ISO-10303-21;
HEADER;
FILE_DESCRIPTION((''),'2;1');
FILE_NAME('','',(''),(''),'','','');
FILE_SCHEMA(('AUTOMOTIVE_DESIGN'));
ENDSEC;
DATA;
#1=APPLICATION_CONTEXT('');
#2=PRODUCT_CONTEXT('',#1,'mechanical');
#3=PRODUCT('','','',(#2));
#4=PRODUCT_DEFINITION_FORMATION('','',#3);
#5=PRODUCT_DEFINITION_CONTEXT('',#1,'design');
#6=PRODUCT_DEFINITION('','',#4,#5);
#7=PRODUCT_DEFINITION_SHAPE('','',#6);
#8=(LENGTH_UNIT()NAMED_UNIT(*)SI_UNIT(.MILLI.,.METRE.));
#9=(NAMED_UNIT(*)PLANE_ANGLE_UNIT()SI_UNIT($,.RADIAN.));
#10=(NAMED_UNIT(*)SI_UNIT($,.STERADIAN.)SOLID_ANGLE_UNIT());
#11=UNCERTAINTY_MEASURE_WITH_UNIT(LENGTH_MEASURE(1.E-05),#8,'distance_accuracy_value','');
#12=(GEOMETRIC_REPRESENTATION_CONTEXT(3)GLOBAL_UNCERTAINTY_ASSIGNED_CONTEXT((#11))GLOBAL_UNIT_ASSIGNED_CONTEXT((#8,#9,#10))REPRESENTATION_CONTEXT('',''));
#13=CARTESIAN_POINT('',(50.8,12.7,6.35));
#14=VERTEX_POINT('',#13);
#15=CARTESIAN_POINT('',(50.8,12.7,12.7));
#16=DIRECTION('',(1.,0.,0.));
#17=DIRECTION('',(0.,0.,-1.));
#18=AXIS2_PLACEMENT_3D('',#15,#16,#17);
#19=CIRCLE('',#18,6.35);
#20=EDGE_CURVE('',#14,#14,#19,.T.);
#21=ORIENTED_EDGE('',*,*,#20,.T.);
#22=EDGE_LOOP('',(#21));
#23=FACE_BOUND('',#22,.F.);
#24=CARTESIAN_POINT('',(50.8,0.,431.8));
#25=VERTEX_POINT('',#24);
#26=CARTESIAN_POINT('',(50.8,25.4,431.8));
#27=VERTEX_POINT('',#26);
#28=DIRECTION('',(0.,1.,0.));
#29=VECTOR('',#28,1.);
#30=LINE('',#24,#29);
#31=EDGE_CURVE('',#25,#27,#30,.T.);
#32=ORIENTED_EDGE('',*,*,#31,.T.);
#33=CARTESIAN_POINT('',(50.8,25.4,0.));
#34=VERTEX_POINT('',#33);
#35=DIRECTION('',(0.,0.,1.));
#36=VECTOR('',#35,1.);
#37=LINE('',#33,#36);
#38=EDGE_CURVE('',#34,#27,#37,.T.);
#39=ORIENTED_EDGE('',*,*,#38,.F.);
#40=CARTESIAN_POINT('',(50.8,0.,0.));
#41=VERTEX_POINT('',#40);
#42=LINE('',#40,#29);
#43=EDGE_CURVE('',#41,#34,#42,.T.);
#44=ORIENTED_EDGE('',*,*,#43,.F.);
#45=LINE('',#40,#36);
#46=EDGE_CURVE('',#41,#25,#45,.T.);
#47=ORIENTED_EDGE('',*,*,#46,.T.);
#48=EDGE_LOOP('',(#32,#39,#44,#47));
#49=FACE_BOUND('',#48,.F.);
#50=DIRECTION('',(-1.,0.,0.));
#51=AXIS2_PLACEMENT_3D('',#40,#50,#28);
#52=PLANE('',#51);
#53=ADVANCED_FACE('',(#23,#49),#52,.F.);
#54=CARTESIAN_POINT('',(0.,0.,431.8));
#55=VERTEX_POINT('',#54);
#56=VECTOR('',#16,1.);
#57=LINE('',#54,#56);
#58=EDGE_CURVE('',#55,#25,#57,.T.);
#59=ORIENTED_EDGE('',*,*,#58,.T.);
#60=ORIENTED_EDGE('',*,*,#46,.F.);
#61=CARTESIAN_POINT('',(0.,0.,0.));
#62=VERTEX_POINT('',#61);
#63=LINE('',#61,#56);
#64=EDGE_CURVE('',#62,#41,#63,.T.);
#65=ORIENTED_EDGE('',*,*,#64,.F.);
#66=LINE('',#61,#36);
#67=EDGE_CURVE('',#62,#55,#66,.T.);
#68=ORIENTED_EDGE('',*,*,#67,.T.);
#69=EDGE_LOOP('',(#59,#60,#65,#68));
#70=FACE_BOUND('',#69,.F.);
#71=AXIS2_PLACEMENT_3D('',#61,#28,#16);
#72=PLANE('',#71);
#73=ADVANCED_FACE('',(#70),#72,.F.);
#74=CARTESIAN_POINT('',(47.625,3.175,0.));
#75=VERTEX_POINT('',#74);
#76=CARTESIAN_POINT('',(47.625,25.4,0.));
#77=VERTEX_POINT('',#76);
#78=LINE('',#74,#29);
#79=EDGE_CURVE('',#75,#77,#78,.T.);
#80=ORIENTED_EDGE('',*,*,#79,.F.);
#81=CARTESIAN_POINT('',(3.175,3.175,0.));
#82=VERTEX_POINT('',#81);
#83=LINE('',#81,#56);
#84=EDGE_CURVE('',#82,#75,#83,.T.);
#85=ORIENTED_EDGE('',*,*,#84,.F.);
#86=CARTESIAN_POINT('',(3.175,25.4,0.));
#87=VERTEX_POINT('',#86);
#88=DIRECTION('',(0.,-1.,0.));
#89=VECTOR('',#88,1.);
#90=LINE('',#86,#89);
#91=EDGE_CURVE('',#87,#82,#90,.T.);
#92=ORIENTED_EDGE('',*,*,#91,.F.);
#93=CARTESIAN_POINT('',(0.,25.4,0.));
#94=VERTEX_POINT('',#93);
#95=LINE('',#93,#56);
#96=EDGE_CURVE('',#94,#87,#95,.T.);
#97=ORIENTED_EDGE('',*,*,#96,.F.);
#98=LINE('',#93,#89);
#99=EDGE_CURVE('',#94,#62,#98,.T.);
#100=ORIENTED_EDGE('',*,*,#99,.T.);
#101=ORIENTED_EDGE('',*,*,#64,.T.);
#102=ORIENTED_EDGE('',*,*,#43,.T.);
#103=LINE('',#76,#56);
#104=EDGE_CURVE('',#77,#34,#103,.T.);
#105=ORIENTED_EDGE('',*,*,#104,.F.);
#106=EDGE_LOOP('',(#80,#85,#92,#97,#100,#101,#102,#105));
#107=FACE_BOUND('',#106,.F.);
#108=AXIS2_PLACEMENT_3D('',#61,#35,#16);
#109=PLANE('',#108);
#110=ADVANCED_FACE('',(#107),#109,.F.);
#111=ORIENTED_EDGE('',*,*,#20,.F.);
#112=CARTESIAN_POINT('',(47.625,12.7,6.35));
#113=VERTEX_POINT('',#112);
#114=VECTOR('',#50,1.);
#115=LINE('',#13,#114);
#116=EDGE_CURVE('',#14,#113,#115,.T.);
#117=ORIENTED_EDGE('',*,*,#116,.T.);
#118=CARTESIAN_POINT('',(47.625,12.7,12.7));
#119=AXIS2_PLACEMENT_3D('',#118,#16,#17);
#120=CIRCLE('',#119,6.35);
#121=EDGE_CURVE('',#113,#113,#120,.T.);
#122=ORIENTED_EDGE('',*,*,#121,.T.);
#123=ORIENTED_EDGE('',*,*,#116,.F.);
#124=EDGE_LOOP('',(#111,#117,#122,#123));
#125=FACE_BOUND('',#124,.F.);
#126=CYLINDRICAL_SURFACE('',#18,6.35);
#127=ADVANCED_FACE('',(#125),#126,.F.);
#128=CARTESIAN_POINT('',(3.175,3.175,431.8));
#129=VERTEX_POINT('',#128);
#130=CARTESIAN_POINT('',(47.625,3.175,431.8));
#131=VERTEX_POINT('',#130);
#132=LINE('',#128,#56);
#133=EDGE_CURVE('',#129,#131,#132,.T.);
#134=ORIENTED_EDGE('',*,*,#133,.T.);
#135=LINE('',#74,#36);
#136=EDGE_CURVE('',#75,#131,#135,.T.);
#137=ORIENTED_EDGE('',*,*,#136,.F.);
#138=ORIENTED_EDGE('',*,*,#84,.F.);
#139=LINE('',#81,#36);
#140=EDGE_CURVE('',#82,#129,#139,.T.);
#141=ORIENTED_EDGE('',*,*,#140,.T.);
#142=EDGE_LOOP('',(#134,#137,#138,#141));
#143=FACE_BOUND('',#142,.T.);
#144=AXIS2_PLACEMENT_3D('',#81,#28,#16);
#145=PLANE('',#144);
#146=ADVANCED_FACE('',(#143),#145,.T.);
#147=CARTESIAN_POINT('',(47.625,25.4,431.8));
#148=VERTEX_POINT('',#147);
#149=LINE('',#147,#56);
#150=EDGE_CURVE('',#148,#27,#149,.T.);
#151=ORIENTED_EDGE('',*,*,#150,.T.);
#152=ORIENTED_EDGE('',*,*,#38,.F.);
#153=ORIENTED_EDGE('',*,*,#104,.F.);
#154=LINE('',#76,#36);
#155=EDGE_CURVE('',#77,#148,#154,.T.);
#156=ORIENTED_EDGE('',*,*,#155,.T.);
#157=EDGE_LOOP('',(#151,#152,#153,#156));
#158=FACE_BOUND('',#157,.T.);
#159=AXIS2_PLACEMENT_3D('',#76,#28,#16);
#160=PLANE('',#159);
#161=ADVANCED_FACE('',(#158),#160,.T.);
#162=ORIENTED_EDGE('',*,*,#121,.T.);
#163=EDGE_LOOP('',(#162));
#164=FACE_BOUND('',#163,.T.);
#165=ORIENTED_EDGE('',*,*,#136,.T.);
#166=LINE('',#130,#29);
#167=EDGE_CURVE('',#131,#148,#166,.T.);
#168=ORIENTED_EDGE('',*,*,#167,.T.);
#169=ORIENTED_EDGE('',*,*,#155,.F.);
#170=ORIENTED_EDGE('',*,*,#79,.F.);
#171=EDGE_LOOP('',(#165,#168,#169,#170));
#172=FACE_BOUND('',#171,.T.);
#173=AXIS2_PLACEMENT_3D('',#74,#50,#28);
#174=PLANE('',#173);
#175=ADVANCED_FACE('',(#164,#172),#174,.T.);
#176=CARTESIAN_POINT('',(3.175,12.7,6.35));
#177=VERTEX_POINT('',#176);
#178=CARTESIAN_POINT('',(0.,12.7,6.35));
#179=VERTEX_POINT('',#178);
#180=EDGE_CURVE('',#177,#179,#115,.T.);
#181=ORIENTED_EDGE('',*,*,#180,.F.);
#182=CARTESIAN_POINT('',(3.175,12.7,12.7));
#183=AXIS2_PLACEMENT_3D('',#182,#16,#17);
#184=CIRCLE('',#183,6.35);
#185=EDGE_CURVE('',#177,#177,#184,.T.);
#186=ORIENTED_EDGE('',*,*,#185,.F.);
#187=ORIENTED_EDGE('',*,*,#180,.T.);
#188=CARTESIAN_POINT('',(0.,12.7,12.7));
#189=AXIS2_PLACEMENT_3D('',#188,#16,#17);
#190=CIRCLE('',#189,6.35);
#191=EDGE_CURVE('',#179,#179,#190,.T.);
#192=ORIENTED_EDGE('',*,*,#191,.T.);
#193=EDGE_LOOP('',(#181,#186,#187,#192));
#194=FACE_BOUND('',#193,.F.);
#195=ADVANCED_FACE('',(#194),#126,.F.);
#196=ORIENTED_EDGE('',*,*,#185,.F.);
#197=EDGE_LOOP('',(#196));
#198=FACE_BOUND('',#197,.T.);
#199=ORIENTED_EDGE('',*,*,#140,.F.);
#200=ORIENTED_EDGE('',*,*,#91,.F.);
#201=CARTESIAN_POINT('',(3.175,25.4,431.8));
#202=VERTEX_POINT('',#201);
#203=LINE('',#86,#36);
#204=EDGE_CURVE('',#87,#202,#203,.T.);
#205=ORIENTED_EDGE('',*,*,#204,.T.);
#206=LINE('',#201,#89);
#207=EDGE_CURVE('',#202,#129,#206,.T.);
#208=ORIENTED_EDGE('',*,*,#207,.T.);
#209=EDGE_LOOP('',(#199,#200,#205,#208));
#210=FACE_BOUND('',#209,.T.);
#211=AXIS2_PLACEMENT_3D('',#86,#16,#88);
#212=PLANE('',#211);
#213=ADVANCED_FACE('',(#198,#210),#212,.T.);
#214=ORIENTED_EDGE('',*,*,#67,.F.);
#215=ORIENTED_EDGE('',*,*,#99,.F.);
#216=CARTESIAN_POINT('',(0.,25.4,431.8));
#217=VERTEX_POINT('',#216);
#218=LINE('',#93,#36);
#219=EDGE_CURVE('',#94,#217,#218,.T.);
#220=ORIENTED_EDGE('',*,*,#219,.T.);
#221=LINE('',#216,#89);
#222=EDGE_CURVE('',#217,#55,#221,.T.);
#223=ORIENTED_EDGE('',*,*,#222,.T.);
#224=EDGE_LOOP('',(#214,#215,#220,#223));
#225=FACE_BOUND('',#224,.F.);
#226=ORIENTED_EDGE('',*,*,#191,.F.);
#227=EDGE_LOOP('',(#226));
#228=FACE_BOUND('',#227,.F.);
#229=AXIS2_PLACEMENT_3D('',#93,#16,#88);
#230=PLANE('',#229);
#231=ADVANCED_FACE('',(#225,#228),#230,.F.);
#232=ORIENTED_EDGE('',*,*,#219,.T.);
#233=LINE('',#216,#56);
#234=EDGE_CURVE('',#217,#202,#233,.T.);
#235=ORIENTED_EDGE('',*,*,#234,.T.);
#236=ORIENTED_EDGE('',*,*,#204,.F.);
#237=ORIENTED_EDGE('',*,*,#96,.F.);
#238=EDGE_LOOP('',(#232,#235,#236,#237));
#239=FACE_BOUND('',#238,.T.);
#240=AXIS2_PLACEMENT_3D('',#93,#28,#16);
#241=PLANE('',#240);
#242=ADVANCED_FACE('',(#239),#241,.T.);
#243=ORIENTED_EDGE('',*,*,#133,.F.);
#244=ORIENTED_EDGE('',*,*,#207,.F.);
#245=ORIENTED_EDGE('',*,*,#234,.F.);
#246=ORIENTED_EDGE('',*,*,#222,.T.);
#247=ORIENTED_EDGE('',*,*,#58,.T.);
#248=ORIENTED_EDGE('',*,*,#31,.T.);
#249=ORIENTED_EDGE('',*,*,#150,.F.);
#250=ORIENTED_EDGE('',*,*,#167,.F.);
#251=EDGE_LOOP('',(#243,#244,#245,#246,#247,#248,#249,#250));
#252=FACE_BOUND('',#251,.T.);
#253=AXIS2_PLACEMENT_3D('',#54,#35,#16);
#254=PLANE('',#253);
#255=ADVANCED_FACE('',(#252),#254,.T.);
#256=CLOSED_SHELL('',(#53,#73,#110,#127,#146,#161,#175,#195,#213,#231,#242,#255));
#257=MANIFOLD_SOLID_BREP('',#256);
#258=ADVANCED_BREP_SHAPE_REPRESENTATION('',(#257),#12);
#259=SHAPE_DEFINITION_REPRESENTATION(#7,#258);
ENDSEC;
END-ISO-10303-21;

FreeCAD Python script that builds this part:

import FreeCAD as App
import Part
import Sketcher
Q = App.Units.Quantity


def add_polygon(sketch, points):
    """Adds a closed chain of lines whose ends are joined by coincident constraints."""
    first, n = sketch.GeometryCount, len(points)
    for a, b in zip(points, points[1:] + points[:1]):
        sketch.addGeometry(Part.LineSegment(App.Vector(*a, 0), App.Vector(*b, 0)), False)
    for i in range(n):
        sketch.addConstraint(Sketcher.Constraint("Coincident", first + i, 2, first + (i + 1) % n, 1))

doc = App.newDocument("Part")
body = doc.addObject("PartDesign::Body", "Body")

# Sketch on XY plane
sketch1 = body.newObject("Sketcher::SketchObject", "Sketch")
sketch1.AttachmentSupport = (doc.getObject("XY_Plane"), [""])
sketch1.MapMode = "FlatFace"
add_polygon(sketch1, [(0, 25.4), (0, 0), (50.8, 0), (50.8, 25.4), (47.625, 25.4), (47.625, 3.175), (3.175, 3.175), (3.175, 25.4)])  # lines 0-7
sketch1.addConstraint(Sketcher.Constraint("Vertical", 0))
sketch1.addConstraint(Sketcher.Constraint("Horizontal", 1))
sketch1.addConstraint(Sketcher.Constraint("Vertical", 2))
sketch1.addConstraint(Sketcher.Constraint("Horizontal", 3))
sketch1.addConstraint(Sketcher.Constraint("Vertical", 4))
sketch1.addConstraint(Sketcher.Constraint("Horizontal", 5))
sketch1.addConstraint(Sketcher.Constraint("Vertical", 6))
sketch1.addConstraint(Sketcher.Constraint("Horizontal", 7))
sketch1.addConstraint(Sketcher.Constraint("Coincident", 0, 2, -1, 1))
sketch1.addConstraint(Sketcher.Constraint("Horizontal", 3, 2, 6, 2))
sketch1.addConstraint(Sketcher.Constraint("Equal", 3, 7))
sketch1.addConstraint(Sketcher.Constraint("DistanceX", 1, 1, 1, 2, Q("2 in")))
sketch1.addConstraint(Sketcher.Constraint("DistanceY", 0, 2, 0, 1, Q("1 in")))
sketch1.addConstraint(Sketcher.Constraint("DistanceX", 3, 2, 3, 1, Q("0.125 in")))
sketch1.addConstraint(Sketcher.Constraint("DistanceY", -1, 1, 4, 2, Q("0.125 in")))
pad1 = body.newObject("PartDesign::Pad", "Pad")
pad1.Profile = sketch1
pad1.Length = Q("17 in")

# Sketch on YZ plane
sketch2 = body.newObject("Sketcher::SketchObject", "Sketch001")
sketch2.AttachmentSupport = (doc.getObject("YZ_Plane"), [""])
sketch2.MapMode = "FlatFace"
sketch2.AttachmentOffset = App.Placement(App.Vector(0, 0, 2 * 25.4), App.Rotation())
sketch2.addGeometry(Part.Circle(App.Vector(12.7, 12.7, 0), App.Vector(0, 0, 1), 6.35), False)
sketch2.addConstraint(Sketcher.Constraint("Diameter", 0, Q("0.5 in")))
sketch2.addConstraint(Sketcher.Constraint("DistanceX", -1, 1, 0, 3, Q("0.5 in")))
sketch2.addConstraint(Sketcher.Constraint("DistanceY", -1, 1, 0, 3, Q("0.5 in")))
pocket1 = body.newObject("PartDesign::Pocket", "Pocket")
pocket1.Profile = sketch2
pocket1.Length = Q("17 in")

doc.recompute()
